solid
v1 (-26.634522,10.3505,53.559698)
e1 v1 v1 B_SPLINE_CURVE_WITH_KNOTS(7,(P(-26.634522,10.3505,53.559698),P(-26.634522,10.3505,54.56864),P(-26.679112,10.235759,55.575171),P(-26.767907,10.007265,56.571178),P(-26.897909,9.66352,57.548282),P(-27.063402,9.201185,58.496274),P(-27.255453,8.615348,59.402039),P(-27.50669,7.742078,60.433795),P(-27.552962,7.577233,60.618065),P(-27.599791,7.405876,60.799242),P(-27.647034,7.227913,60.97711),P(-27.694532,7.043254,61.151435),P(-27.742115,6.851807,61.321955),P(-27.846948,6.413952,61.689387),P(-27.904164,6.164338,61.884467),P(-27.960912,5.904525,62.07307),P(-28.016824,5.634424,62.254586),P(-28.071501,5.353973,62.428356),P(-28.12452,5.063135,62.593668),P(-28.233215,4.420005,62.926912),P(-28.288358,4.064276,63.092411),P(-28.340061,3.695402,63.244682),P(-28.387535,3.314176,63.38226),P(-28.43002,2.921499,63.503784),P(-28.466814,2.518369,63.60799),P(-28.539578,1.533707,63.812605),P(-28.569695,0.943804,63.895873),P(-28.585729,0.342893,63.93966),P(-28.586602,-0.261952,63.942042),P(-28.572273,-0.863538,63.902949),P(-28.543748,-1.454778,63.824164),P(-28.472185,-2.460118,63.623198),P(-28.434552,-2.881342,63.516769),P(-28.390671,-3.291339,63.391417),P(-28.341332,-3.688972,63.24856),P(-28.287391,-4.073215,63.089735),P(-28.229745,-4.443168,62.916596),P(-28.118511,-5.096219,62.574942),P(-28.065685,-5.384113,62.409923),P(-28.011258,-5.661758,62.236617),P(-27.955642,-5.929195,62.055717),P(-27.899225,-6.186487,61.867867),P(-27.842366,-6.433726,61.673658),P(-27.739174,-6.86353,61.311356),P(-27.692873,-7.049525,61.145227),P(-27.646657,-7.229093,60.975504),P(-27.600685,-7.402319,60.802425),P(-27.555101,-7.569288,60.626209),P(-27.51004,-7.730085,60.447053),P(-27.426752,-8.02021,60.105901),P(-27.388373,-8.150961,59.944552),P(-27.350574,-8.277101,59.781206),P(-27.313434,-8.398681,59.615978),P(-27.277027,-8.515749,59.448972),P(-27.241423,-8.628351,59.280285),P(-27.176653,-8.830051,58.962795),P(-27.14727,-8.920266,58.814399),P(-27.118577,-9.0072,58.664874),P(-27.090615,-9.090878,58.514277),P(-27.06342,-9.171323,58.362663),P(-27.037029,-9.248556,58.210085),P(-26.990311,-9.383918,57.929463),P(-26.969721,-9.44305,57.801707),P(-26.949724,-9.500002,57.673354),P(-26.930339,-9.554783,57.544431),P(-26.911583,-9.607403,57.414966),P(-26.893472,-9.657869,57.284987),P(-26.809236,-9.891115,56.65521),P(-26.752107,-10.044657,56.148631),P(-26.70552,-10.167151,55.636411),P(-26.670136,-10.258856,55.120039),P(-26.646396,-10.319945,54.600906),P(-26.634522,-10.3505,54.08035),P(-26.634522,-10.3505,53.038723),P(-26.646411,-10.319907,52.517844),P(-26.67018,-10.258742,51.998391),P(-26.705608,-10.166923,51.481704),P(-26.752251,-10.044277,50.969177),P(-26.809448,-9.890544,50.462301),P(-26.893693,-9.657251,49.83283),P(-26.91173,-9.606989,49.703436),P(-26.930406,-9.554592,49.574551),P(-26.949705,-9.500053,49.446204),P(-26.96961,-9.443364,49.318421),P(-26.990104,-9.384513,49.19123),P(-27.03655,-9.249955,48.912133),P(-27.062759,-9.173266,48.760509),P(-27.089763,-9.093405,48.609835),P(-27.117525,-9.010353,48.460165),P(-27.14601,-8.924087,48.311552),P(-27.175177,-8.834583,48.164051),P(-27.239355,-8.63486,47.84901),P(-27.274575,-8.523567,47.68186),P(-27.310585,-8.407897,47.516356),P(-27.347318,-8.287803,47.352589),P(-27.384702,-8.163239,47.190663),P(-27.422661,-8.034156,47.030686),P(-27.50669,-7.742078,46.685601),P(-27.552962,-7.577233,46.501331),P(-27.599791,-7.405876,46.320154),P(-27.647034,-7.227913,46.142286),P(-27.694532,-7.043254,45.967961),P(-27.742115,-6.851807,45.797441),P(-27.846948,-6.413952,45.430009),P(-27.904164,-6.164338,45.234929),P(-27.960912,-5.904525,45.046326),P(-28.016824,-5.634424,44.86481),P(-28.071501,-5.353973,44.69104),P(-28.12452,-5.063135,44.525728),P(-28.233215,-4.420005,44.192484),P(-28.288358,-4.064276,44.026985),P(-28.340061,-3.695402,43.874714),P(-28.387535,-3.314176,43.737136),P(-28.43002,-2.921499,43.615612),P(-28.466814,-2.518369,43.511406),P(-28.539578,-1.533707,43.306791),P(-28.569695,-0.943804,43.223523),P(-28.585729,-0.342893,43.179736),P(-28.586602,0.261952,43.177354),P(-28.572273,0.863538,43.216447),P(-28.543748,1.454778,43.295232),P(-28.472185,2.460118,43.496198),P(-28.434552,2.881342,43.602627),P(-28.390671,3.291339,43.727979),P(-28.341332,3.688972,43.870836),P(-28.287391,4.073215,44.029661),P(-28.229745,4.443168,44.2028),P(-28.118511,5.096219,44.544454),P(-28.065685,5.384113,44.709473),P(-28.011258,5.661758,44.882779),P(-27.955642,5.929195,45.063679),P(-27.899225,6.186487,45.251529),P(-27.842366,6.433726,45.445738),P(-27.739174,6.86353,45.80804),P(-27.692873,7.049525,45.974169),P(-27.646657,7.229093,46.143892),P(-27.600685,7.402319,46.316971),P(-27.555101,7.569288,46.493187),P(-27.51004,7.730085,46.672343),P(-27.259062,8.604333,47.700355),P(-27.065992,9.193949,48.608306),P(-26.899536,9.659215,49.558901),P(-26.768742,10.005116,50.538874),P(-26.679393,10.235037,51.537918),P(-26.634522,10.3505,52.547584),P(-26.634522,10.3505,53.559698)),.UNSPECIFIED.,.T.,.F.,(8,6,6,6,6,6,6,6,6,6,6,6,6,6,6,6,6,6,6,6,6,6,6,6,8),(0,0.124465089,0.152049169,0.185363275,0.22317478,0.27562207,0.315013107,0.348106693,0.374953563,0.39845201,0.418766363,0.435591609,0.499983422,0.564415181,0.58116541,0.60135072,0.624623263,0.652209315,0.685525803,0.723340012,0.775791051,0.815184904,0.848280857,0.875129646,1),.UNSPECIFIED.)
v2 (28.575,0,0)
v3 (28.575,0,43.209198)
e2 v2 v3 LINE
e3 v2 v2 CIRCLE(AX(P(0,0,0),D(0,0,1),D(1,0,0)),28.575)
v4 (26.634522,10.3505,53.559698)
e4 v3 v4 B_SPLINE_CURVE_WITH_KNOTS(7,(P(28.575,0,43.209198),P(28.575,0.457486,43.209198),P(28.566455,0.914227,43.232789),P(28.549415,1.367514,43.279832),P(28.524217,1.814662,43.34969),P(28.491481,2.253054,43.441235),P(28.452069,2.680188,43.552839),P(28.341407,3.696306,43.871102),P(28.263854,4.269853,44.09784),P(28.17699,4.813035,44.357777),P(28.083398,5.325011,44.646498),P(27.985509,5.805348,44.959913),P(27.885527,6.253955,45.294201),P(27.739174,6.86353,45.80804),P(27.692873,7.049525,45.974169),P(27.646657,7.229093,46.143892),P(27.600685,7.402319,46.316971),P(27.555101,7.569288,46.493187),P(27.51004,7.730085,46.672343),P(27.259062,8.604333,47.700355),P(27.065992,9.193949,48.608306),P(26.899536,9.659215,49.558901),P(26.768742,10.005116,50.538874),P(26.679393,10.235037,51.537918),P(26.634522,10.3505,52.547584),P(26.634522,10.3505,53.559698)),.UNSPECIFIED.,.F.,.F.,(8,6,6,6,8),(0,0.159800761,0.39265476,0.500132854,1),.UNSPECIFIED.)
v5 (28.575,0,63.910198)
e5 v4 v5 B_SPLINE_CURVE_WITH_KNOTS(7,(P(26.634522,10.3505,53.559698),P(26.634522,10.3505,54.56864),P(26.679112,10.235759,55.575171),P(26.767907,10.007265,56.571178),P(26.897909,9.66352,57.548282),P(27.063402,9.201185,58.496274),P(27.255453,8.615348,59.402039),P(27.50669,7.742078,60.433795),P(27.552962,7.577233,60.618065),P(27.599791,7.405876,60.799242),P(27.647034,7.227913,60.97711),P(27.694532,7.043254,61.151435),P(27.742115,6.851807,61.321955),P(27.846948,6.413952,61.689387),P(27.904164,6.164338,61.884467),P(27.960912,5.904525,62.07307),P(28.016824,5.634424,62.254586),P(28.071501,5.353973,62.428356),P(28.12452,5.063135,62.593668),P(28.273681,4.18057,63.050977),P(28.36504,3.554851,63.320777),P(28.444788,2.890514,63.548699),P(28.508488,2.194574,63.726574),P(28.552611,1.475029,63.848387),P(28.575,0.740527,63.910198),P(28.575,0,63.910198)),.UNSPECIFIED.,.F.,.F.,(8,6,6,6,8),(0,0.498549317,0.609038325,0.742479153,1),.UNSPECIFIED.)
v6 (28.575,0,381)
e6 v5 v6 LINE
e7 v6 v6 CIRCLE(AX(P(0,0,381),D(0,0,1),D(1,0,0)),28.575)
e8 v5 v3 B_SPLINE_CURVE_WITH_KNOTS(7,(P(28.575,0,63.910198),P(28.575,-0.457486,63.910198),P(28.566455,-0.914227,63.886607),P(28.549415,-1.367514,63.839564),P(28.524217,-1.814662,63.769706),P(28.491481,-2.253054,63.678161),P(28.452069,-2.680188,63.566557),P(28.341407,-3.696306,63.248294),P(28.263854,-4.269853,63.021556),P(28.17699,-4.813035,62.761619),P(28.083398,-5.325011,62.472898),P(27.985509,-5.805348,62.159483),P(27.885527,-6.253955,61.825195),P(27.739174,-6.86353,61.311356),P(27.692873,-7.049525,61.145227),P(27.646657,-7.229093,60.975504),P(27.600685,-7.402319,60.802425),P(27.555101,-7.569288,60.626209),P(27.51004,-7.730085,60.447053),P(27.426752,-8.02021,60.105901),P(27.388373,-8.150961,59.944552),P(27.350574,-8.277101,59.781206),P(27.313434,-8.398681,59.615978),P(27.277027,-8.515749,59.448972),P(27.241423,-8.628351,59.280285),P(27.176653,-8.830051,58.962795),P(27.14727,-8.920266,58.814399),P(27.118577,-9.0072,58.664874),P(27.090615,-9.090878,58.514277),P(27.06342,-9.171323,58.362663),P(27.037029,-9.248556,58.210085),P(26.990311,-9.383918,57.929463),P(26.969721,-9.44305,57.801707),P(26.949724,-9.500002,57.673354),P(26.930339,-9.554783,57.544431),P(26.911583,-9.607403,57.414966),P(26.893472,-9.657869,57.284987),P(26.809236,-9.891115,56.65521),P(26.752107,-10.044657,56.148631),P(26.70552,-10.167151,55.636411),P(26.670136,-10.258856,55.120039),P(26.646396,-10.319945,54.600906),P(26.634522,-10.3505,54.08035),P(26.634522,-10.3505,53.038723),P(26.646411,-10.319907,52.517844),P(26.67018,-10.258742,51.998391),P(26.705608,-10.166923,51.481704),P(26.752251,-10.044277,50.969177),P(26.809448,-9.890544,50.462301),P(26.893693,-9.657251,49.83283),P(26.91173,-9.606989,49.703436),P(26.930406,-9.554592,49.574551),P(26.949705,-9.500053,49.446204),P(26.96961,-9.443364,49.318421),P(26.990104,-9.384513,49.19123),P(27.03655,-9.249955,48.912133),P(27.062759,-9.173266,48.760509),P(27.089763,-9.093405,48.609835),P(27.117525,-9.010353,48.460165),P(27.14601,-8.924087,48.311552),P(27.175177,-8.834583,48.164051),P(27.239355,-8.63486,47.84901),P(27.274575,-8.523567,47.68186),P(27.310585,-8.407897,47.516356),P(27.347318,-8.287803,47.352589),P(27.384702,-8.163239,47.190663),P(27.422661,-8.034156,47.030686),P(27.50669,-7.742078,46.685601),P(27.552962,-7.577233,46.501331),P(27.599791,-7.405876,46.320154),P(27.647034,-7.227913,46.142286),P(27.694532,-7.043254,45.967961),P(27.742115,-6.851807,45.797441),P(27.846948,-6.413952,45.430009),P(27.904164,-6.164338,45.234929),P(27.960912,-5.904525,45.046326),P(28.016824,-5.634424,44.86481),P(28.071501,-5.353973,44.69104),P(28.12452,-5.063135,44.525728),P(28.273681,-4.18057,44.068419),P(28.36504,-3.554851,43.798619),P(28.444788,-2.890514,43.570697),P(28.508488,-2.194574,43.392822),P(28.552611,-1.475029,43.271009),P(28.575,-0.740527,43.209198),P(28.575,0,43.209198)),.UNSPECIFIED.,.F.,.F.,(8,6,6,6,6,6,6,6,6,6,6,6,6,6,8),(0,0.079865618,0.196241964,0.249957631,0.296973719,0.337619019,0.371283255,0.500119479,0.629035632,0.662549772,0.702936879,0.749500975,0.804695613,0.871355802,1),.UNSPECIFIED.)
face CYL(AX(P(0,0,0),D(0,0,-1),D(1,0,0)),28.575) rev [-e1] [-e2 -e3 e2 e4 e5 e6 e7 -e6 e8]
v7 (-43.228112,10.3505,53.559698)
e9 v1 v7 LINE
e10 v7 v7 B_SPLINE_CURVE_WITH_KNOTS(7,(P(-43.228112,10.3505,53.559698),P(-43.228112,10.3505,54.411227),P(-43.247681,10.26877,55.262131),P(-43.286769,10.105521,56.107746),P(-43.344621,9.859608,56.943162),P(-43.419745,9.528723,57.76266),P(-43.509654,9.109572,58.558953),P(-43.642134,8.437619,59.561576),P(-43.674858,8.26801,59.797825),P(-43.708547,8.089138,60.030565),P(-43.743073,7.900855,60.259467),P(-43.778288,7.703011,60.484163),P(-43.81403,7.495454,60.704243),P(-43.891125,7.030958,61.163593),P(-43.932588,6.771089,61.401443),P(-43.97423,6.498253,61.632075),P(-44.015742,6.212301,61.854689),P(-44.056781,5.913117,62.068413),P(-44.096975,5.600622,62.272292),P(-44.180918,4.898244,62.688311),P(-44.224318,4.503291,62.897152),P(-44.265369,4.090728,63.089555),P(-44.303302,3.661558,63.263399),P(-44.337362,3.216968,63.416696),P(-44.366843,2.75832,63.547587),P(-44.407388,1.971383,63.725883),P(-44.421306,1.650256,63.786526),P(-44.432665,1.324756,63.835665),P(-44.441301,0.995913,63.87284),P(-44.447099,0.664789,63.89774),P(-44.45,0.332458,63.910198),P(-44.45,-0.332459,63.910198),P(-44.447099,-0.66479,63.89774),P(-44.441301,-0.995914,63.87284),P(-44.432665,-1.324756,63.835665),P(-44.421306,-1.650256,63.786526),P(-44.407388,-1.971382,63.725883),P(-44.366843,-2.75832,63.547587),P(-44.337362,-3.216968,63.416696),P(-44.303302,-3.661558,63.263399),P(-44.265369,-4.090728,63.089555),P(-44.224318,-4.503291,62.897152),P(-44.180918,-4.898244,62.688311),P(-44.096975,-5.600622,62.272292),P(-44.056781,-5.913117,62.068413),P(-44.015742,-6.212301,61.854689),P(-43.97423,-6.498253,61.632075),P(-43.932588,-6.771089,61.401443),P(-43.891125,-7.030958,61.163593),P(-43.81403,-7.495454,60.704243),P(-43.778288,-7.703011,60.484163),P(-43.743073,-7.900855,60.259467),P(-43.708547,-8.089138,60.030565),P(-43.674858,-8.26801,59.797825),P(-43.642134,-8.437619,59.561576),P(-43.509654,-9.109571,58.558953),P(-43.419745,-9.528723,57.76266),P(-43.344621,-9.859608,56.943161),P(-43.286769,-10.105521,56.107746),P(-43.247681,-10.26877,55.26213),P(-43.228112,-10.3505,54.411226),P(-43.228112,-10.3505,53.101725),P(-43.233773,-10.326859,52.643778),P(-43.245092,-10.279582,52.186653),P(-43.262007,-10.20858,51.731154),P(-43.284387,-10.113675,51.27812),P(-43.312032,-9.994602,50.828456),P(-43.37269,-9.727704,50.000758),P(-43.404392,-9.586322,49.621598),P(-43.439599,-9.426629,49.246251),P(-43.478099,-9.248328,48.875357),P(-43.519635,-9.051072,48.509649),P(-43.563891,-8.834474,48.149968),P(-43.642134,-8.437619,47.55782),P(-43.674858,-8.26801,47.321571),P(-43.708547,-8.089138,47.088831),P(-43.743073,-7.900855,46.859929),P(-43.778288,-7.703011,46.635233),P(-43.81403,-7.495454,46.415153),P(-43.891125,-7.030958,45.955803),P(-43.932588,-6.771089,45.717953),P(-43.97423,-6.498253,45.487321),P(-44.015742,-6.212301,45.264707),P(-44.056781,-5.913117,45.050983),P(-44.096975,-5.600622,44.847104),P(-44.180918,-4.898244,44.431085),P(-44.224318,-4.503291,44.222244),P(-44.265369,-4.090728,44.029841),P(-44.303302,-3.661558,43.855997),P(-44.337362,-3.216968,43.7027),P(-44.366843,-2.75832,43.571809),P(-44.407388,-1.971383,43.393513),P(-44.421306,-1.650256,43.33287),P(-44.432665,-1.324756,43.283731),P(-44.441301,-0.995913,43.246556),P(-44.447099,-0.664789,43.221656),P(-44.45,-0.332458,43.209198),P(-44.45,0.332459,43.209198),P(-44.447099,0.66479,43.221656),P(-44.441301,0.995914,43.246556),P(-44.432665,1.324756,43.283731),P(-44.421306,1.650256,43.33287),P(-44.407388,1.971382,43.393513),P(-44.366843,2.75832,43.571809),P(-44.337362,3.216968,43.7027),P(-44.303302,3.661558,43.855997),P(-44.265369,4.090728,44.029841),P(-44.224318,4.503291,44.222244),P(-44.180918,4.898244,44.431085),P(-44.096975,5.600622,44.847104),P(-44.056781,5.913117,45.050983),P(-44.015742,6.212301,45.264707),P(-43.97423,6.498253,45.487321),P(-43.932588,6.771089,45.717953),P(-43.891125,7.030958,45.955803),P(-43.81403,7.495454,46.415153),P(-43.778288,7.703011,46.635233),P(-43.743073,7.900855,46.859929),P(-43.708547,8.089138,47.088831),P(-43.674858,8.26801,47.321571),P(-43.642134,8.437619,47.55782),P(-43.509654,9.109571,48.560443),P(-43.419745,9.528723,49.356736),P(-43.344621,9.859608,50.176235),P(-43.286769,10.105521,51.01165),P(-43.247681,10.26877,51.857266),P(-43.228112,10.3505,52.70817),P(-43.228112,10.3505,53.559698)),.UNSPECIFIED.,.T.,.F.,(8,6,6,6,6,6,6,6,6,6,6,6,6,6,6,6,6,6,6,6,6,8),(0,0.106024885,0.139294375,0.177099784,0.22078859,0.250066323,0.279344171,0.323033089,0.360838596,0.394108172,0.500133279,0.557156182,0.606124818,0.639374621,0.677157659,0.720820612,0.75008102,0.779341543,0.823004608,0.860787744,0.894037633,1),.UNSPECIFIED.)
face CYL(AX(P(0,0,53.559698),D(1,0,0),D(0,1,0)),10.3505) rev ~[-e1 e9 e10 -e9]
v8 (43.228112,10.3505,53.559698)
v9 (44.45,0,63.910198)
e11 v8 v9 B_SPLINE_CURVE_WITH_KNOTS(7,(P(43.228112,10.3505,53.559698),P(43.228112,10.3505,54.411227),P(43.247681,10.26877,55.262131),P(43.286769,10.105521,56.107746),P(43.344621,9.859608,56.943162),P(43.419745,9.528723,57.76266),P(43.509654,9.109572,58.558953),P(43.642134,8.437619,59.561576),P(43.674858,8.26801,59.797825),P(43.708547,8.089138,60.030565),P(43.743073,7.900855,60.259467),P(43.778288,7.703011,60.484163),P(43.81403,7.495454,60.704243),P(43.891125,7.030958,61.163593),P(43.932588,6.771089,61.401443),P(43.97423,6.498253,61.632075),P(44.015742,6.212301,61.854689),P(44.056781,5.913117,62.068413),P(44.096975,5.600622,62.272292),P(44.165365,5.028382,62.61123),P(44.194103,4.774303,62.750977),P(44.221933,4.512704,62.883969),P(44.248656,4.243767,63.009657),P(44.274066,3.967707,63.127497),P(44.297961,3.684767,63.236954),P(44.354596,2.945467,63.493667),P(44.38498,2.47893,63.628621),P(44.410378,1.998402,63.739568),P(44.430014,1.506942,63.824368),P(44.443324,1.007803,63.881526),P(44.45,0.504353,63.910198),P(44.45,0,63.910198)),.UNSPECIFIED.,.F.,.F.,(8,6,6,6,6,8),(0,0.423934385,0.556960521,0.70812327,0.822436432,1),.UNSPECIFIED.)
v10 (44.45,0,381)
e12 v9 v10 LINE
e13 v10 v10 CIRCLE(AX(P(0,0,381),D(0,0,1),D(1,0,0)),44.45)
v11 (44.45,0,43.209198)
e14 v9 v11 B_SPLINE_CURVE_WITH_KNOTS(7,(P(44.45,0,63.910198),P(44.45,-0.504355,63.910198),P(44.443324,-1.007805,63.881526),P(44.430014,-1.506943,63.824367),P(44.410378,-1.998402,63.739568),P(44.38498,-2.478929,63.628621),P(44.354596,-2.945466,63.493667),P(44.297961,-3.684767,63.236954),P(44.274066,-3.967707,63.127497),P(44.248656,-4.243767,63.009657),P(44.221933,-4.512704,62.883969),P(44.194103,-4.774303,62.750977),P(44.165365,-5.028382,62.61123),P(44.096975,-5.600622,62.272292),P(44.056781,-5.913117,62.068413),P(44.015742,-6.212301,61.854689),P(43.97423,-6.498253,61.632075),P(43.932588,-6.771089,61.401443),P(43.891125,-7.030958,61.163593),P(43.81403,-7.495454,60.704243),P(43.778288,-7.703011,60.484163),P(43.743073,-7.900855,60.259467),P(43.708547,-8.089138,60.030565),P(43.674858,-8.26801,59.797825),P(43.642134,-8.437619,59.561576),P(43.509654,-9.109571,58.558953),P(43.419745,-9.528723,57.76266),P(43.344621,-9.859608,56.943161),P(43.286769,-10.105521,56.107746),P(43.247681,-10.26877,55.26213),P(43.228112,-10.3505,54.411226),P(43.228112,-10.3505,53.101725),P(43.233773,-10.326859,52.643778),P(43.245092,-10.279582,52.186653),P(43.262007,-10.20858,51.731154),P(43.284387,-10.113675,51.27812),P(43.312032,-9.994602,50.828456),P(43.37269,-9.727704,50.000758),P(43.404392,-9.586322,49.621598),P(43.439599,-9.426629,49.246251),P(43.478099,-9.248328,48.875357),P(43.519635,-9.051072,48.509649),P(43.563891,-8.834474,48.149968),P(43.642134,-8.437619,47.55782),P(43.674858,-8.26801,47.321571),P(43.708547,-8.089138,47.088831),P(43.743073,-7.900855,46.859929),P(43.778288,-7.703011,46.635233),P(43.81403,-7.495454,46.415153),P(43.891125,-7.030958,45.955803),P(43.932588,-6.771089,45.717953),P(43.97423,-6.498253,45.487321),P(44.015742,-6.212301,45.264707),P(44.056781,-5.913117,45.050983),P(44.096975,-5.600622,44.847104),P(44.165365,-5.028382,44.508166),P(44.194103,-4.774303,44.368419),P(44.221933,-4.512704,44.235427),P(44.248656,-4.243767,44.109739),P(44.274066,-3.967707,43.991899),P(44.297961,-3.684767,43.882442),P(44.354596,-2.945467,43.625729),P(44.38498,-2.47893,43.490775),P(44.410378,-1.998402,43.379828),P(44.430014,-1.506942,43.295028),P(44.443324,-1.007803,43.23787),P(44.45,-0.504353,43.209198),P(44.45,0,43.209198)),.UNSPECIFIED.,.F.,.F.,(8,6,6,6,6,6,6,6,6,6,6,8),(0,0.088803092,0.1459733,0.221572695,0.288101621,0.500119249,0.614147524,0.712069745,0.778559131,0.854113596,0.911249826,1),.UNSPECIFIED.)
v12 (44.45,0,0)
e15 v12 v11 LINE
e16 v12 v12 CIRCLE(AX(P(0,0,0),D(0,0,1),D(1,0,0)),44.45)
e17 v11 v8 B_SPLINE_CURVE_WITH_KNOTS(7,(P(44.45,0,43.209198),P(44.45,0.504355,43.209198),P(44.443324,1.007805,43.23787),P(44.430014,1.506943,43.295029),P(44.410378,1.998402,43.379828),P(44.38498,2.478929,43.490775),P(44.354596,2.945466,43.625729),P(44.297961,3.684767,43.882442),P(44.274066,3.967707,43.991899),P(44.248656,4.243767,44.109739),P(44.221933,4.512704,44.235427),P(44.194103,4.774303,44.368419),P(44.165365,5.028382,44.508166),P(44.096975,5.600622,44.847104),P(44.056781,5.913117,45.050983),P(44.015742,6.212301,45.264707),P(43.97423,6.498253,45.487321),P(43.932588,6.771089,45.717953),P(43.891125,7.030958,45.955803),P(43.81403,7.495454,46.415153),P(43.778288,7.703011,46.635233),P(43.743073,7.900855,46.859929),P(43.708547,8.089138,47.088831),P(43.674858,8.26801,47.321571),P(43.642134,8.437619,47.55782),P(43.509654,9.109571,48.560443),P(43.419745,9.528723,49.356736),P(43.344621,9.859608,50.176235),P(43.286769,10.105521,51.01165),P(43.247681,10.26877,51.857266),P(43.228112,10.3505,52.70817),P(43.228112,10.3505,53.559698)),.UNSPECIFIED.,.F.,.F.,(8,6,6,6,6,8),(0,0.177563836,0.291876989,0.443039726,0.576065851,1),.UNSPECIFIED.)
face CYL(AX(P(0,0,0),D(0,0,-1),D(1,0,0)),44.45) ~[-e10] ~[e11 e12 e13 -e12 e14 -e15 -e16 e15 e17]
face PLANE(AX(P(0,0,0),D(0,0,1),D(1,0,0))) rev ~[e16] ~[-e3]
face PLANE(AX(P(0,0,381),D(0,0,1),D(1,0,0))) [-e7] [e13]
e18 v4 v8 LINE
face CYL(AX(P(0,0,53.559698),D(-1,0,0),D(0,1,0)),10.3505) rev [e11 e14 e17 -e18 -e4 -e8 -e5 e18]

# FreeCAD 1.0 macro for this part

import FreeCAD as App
import Part
import Sketcher

V = App.Vector
Q = App.Units.Quantity

doc = App.newDocument("Part")
body = doc.addObject("PartDesign::Body", "Body")

# Sketch on XY plane
sketch1 = doc.addObject("Sketcher::SketchObject", "Sketch")
body.addObject(sketch1)
sketch1.AttachmentSupport = (doc.XY_Plane, [""])
sketch1.MapMode = "FlatFace"
sketch1.addGeometry(Part.Circle(V(0, 0, 0), V(0, 0, 1), 44.45), False)
sketch1.addGeometry(Part.Circle(V(0, 0, 0), V(0, 0, 1), 28.575), False)
sketch1.addConstraint(Sketcher.Constraint("Coincident", 0, 3, -1, 1))
sketch1.addConstraint(Sketcher.Constraint("Coincident", 1, 3, -1, 1))
sketch1.addConstraint(Sketcher.Constraint("Diameter", 0, Q("3.5 in")))
sketch1.addConstraint(Sketcher.Constraint("Diameter", 1, Q("2.25 in")))
pad1 = doc.addObject("PartDesign::Pad", "Pad")
body.addObject(pad1)
pad1.Profile = sketch1
pad1.Length = Q("15 in")

# Sketch on YZ plane
sketch2 = doc.addObject("Sketcher::SketchObject", "Sketch001")
body.addObject(sketch2)
sketch2.AttachmentSupport = (doc.YZ_Plane, [""])
sketch2.MapMode = "FlatFace"
sketch2.addGeometry(Part.Circle(V(0, 53.559698, 0), V(0, 0, 1), 10.3505), False)
sketch2.addConstraint(Sketcher.Constraint("PointOnObject", 0, 3, -2))
sketch2.addConstraint(Sketcher.Constraint("Diameter", 0, Q("0.815 in")))
sketch2.addConstraint(Sketcher.Constraint("DistanceY", -1, 1, 0, 3, Q("53.559698 mm")))
pocket1 = doc.addObject("PartDesign::Pocket", "Pocket")
body.addObject(pocket1)
pocket1.Profile = sketch2
pocket1.Length = Q("4.72 in")

# Sketch on YZ plane
sketch3 = doc.addObject("Sketcher::SketchObject", "Sketch002")
body.addObject(sketch3)
sketch3.AttachmentSupport = (doc.YZ_Plane, [""])
sketch3.MapMode = "FlatFace"
sketch3.addGeometry(Part.Circle(V(0, 53.559698, 0), V(0, 0, 1), 10.3505), False)
sketch3.addConstraint(Sketcher.Constraint("PointOnObject", 0, 3, -2))
sketch3.addConstraint(Sketcher.Constraint("Diameter", 0, Q("0.815 in")))
sketch3.addConstraint(Sketcher.Constraint("DistanceY", -1, 1, 0, 3, Q("53.559698 mm")))
pocket2 = doc.addObject("PartDesign::Pocket", "Pocket001")
body.addObject(pocket2)
pocket2.Profile = sketch3
pocket2.Length = Q("2.59 in")
pocket2.Reversed = True

doc.recompute()
